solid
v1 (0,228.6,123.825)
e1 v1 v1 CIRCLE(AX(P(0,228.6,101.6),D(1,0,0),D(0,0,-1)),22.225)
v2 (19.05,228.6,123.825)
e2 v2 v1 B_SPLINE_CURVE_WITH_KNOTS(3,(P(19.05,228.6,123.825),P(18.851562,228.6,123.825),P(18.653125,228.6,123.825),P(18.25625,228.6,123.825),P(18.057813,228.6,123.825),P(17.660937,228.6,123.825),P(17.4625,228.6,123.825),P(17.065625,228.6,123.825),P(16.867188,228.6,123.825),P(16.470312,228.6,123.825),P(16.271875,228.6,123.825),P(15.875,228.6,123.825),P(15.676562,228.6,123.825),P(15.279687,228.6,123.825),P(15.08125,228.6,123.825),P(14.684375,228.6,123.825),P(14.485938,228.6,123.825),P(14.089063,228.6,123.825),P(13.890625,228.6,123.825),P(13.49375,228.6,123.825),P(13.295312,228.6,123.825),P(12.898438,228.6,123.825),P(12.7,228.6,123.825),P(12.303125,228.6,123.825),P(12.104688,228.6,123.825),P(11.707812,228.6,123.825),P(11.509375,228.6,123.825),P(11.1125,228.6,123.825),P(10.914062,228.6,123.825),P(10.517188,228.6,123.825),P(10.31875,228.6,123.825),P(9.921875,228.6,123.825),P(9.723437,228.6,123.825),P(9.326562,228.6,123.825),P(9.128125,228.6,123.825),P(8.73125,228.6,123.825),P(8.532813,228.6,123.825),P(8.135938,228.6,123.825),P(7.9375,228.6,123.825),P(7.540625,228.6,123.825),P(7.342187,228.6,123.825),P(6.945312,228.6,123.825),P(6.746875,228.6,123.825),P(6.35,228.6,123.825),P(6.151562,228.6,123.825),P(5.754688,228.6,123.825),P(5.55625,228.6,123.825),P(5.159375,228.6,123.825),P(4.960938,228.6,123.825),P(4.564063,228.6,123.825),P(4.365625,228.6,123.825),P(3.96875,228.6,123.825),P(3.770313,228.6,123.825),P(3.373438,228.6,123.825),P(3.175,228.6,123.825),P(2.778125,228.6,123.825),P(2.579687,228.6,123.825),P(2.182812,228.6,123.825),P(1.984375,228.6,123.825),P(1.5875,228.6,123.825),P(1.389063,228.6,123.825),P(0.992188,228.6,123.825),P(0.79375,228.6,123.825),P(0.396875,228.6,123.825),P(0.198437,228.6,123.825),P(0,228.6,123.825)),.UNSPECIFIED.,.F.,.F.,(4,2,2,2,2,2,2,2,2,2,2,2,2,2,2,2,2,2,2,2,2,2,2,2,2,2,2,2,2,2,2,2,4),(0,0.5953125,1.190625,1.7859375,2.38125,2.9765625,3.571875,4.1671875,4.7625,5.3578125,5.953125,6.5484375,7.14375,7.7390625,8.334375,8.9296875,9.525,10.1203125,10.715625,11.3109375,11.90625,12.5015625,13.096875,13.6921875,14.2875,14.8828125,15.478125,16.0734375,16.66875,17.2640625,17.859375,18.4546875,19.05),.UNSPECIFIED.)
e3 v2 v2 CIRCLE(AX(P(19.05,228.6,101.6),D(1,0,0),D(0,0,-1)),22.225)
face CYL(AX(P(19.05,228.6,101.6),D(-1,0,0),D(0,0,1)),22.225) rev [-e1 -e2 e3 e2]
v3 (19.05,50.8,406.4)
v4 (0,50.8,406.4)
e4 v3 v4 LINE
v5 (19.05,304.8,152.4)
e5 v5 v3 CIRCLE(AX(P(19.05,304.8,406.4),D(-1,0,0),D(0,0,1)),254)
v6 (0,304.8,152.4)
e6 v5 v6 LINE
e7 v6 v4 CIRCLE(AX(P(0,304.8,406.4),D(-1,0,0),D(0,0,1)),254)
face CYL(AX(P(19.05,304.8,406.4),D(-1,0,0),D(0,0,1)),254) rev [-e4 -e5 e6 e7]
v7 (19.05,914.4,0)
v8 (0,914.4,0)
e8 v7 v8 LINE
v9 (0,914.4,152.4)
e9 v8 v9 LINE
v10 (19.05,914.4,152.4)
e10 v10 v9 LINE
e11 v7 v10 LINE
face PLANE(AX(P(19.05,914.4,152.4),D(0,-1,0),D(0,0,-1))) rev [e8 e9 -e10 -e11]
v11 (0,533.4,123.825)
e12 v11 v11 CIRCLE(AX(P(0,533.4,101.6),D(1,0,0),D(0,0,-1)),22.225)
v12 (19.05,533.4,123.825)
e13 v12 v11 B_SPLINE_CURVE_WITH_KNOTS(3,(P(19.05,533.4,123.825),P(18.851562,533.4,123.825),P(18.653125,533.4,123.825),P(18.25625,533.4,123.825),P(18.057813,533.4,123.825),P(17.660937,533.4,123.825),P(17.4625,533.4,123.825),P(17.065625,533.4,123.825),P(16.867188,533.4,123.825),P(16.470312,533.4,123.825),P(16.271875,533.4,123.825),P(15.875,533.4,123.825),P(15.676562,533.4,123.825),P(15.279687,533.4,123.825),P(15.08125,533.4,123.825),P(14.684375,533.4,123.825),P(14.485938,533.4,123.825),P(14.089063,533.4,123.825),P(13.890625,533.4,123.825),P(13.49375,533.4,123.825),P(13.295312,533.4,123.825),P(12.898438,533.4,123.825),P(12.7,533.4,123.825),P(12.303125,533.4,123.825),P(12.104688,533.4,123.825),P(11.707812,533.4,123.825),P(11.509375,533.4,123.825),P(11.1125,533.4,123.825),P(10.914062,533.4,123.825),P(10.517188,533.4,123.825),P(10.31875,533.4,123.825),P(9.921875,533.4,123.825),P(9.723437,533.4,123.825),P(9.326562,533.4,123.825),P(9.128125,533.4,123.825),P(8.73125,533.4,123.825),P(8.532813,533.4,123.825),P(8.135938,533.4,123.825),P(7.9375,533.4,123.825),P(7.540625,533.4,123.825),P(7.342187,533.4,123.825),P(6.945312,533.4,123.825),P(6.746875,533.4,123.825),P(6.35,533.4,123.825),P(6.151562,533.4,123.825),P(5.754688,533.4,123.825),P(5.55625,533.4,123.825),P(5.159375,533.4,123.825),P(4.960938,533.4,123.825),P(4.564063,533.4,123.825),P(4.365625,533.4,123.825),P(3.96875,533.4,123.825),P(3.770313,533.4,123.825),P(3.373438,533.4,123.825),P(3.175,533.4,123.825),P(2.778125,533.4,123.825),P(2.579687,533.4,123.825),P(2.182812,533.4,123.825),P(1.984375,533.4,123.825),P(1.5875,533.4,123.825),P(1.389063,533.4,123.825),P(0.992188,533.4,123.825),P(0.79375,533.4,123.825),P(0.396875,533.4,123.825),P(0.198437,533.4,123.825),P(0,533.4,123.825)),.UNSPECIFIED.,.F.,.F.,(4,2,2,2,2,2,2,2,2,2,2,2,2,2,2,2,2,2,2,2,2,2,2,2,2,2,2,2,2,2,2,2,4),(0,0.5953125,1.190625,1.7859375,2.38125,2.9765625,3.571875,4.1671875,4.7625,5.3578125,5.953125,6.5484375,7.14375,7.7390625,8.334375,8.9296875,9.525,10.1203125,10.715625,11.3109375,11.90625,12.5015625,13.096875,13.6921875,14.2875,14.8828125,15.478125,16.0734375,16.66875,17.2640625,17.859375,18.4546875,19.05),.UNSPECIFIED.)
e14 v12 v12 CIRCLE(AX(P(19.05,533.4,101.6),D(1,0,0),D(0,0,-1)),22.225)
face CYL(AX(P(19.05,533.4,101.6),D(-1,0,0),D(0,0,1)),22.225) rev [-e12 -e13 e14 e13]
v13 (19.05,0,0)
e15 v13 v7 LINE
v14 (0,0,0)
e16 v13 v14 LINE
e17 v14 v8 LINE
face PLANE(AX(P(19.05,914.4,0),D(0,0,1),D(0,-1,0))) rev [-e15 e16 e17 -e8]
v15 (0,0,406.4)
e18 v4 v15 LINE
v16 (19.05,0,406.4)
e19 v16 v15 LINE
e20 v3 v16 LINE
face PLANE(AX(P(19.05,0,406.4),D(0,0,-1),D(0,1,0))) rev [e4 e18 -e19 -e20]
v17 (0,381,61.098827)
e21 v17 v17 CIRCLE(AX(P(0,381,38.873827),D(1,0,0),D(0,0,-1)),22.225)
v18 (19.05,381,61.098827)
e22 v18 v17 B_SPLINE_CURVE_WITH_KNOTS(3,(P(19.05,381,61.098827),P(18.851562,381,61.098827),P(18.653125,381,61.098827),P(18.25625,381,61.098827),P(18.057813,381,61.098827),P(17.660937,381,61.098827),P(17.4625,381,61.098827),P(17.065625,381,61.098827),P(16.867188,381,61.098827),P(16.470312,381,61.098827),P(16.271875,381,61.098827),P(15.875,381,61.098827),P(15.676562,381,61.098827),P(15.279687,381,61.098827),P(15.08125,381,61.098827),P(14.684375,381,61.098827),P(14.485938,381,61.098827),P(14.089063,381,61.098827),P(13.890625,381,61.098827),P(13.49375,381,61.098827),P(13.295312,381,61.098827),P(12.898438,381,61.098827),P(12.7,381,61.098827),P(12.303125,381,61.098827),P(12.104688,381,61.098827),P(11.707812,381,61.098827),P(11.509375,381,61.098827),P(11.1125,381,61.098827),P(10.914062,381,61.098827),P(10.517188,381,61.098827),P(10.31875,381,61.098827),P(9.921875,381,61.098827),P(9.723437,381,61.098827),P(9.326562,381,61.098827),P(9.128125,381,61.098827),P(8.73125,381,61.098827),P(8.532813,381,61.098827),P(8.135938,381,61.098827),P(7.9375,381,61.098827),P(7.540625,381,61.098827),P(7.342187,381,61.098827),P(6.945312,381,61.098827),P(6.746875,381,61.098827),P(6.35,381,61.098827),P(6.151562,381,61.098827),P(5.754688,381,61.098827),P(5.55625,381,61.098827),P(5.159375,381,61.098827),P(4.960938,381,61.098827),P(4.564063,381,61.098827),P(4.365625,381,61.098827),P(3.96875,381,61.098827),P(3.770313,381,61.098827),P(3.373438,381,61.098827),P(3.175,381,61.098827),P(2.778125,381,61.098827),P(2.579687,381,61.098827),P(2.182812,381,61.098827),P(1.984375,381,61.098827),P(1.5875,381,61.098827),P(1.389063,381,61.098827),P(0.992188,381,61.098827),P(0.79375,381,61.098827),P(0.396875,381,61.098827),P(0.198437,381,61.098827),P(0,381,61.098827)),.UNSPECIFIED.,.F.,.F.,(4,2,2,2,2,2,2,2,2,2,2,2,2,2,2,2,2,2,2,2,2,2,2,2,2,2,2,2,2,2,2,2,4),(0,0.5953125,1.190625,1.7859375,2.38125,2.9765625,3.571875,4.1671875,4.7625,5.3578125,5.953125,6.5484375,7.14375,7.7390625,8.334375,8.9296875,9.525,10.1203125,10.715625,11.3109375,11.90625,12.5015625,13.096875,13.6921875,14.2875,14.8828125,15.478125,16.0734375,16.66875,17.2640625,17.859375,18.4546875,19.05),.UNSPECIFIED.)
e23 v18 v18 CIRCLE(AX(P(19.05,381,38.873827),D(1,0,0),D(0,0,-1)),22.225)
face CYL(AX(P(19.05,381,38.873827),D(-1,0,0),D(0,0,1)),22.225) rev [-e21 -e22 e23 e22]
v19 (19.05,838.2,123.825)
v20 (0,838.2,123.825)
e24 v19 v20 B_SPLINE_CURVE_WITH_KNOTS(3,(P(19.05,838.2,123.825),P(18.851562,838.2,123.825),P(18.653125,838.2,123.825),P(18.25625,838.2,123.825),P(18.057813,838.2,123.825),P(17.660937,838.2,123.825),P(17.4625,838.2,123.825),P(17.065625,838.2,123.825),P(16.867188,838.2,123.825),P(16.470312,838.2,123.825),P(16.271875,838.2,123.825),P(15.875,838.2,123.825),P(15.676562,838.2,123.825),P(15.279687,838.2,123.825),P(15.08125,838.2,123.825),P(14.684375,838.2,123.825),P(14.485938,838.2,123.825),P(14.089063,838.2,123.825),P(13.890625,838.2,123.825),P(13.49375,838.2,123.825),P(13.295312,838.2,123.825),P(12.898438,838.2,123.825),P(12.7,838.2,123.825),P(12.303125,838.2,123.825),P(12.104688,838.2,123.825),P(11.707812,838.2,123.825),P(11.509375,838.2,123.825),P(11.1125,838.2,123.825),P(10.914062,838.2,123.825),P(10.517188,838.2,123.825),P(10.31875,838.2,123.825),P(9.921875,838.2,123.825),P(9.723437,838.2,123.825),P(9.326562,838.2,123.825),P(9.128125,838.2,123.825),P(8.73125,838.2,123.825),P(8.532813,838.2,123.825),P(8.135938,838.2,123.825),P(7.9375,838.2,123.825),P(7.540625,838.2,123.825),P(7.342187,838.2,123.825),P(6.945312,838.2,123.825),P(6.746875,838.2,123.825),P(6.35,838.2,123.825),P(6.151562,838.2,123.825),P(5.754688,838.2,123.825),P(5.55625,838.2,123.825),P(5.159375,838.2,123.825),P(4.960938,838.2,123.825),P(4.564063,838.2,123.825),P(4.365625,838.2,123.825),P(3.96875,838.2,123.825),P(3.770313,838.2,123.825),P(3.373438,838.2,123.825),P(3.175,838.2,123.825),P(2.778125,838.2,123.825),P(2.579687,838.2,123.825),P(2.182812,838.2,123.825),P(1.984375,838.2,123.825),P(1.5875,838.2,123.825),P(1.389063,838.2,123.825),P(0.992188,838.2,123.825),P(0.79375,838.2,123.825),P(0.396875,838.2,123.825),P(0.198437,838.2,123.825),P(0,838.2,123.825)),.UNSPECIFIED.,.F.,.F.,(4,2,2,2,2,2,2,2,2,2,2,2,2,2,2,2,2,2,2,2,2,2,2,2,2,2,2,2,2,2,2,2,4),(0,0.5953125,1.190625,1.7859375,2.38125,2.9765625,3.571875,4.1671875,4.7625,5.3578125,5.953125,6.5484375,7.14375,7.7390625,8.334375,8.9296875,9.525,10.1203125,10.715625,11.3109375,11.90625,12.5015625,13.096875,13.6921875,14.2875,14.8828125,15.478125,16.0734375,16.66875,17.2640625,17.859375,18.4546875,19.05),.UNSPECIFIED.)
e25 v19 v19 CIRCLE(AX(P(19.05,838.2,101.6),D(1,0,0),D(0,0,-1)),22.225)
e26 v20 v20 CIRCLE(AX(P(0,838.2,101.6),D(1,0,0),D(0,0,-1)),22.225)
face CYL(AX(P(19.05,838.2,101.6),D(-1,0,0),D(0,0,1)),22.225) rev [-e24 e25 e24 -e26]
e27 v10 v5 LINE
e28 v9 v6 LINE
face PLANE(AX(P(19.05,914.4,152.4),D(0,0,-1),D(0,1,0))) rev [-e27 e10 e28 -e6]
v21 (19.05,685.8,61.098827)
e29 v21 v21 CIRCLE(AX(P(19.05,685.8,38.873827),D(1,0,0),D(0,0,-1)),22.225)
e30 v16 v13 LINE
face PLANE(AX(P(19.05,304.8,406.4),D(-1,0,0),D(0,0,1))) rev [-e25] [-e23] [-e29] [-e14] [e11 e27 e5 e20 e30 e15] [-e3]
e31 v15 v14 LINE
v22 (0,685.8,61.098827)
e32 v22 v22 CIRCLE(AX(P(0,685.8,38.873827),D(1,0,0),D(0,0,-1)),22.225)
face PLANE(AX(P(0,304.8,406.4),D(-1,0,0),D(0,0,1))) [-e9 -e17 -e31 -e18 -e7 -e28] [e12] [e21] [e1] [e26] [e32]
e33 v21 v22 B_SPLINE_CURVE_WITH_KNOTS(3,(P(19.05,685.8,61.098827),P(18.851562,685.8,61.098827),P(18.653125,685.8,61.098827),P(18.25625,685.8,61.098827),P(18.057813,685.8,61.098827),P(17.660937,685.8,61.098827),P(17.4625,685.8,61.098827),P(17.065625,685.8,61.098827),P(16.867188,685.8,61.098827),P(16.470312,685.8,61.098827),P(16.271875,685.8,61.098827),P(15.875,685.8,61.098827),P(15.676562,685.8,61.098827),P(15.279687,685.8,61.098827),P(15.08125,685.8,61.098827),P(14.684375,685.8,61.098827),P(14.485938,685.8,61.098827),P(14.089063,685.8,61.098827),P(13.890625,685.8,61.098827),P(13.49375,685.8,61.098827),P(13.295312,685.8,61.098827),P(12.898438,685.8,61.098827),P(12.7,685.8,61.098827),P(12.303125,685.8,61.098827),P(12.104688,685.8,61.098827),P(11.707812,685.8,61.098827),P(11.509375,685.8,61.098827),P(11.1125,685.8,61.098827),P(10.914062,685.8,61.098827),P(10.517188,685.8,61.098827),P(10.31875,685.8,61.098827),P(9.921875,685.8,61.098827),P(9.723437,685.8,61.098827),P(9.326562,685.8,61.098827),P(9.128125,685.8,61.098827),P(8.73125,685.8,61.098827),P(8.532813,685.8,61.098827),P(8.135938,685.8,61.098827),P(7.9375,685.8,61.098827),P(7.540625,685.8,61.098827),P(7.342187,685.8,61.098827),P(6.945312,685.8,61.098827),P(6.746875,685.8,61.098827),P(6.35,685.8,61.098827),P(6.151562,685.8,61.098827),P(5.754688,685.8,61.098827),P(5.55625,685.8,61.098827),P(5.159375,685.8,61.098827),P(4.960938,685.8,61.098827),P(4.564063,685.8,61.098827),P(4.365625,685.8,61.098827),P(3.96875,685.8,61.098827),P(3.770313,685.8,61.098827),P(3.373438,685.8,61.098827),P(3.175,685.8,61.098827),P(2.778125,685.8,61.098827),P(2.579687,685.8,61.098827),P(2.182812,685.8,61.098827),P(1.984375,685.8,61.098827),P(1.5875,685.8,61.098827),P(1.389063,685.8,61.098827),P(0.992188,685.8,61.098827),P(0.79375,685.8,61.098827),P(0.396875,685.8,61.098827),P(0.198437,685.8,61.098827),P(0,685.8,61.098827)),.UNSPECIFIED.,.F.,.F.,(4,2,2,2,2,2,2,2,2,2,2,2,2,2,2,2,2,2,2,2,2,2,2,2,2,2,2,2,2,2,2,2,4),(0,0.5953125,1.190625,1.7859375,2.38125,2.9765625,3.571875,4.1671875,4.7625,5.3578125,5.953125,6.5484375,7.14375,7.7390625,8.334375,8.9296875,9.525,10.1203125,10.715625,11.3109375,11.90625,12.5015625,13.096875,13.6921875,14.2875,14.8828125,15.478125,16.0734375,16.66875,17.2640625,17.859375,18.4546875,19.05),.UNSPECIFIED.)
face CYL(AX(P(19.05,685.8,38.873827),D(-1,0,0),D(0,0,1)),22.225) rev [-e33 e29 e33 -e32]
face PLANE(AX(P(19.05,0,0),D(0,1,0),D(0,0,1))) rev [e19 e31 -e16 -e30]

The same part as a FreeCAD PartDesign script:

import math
import FreeCAD as App
import Part
import Sketcher
from FreeCAD import Vector
Q = App.Units.Quantity

doc = App.newDocument("Part")
body = doc.addObject("PartDesign::Body", "Body")

# Sketch on YZ plane
sketch1 = doc.addObject("Sketcher::SketchObject", "Sketch")
body.addObject(sketch1)
sketch1.AttachmentSupport = (doc.YZ_Plane, [""])
sketch1.MapMode = "FlatFace"
sketch1.addGeometry([
    Part.LineSegment(Vector(914, 152, 0), Vector(305, 152, 0)),  # 0
    Part.ArcOfCircle(Part.Circle(Vector(305, 406, 0), Vector(0, 0, 1), 254), math.radians(-180), math.radians(-90)),  # 1
    Part.LineSegment(Vector(51, 406, 0), Vector(0, 406, 0)),  # 2
    Part.LineSegment(Vector(0, 406, 0), Vector(0, 0, 0)),  # 3
    Part.LineSegment(Vector(0, 0, 0), Vector(914, 0, 0)),  # 4
    Part.LineSegment(Vector(914, 0, 0), Vector(914, 152, 0)),  # 5
    Part.Circle(Vector(229, 102, 0), Vector(0, 0, 1), 22),  # 6
    Part.Circle(Vector(381, 39, 0), Vector(0, 0, 1), 22),  # 7
    Part.Circle(Vector(533, 102, 0), Vector(0, 0, 1), 22),  # 8
    Part.Circle(Vector(838, 102, 0), Vector(0, 0, 1), 22),  # 9
    Part.Circle(Vector(686, 39, 0), Vector(0, 0, 1), 22),  # 10
], False)
sketch1.addConstraint([
    Sketcher.Constraint("Tangent", 0, 2, 1, 2),
    Sketcher.Constraint("Coincident", 1, 1, 2, 1),
    Sketcher.Constraint("Coincident", 2, 2, 3, 1),
    Sketcher.Constraint("Coincident", 3, 2, 4, 1),
    Sketcher.Constraint("Coincident", 4, 2, 5, 1),
    Sketcher.Constraint("Coincident", 5, 2, 0, 1),
    Sketcher.Constraint("Horizontal", 0),
    Sketcher.Constraint("Horizontal", 2),
    Sketcher.Constraint("Vertical", 3),
    Sketcher.Constraint("Horizontal", 4),
    Sketcher.Constraint("Vertical", 5),
    Sketcher.Constraint("Coincident", 3, 2, -1, 1),
    Sketcher.Constraint("Equal", 6, 7),
    Sketcher.Constraint("Equal", 7, 8),
    Sketcher.Constraint("Equal", 8, 9),
    Sketcher.Constraint("Equal", 9, 10),
    Sketcher.Constraint("Horizontal", 6, 3, 8, 3),
    Sketcher.Constraint("Horizontal", 8, 3, 9, 3),
    Sketcher.Constraint("Horizontal", 7, 3, 10, 3),
    Sketcher.Constraint("Radius", 1, Q("10 in")),
    Sketcher.Constraint("Diameter", 6, Q("1.75 in")),
    Sketcher.Constraint("DistanceX", 0, 2, 0, 1, Q("24 in")),
    Sketcher.Constraint("DistanceX", 2, 2, 2, 1, Q("2 in")),
    Sketcher.Constraint("DistanceY", 3, 2, 3, 1, Q("16 in")),
    Sketcher.Constraint("DistanceY", 5, 1, 5, 2, Q("6 in")),
    Sketcher.Constraint("DistanceX", -1, 1, 6, 3, Q("9 in")),
    Sketcher.Constraint("DistanceY", -1, 1, 6, 3, Q("4 in")),
    Sketcher.Constraint("DistanceX", -1, 1, 7, 3, Q("15 in")),
    Sketcher.Constraint("DistanceX", -1, 1, 8, 3, Q("21 in")),
    Sketcher.Constraint("DistanceX", -1, 1, 9, 3, Q("33 in")),
    Sketcher.Constraint("DistanceX", -1, 1, 10, 3, Q("27 in")),
    Sketcher.Constraint("DistanceY", -1, 1, 7, 3, Q("38.873827 mm")),
])
pad1 = doc.addObject("PartDesign::Pad", "Pad")
body.addObject(pad1)
pad1.Profile = sketch1
pad1.Length = Q("0.75 in")

doc.recompute()
